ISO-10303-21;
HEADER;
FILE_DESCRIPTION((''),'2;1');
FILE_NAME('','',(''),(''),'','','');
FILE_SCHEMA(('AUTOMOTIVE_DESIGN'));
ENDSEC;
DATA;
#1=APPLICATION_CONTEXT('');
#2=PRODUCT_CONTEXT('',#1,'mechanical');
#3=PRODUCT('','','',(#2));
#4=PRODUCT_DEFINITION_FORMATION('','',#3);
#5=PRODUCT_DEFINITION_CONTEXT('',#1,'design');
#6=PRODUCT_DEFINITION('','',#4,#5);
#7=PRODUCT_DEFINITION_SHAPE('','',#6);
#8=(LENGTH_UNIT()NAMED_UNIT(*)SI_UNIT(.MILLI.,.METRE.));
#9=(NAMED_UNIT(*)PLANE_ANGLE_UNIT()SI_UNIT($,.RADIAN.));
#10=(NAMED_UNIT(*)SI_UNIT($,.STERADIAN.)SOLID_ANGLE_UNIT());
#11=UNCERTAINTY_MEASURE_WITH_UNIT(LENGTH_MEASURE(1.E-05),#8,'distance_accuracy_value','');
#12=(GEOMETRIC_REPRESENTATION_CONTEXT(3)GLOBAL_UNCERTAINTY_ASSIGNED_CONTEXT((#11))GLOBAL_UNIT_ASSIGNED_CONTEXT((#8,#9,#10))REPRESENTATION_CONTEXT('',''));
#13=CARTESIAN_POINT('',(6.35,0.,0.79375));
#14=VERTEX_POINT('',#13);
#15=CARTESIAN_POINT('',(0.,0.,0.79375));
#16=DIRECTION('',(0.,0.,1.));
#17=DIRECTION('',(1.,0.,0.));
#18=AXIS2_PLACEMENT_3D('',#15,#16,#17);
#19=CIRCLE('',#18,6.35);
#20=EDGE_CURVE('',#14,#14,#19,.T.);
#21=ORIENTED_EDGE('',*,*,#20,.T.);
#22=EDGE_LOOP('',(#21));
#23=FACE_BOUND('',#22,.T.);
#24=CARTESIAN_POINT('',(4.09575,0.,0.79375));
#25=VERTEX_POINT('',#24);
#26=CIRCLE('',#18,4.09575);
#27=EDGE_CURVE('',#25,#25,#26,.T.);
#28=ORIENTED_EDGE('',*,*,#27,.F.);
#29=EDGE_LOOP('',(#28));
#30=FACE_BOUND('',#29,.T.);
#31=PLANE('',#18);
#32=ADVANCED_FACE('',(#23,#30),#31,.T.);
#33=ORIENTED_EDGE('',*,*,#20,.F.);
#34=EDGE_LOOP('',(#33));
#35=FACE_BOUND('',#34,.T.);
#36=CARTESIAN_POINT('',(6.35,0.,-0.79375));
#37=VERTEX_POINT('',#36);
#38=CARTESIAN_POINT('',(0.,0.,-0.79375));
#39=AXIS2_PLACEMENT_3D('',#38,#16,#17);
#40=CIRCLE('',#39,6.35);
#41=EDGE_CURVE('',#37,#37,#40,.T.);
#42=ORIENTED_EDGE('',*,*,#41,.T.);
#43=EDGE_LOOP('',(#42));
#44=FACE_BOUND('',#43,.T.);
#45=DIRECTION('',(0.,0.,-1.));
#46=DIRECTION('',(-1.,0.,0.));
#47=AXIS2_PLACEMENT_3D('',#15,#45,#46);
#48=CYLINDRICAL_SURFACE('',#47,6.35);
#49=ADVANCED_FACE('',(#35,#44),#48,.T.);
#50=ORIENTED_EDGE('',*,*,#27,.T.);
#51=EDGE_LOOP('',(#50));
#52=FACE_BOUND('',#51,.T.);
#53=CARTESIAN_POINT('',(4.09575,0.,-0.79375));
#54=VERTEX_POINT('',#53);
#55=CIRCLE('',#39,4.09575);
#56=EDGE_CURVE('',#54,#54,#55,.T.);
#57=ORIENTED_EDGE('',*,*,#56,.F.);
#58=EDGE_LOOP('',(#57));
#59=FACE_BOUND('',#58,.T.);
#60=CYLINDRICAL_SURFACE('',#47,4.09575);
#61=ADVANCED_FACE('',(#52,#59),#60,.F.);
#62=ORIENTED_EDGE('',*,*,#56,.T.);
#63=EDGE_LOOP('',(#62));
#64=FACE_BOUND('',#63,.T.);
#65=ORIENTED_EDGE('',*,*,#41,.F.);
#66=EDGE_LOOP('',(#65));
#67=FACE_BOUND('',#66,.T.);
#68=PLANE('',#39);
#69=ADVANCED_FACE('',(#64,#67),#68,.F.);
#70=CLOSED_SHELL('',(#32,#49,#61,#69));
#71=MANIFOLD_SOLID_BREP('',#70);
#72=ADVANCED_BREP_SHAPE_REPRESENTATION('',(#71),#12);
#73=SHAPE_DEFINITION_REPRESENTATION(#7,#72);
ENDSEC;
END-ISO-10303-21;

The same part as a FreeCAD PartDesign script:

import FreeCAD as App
import Part
import Sketcher

V = App.Vector
Q = App.Units.Quantity

doc = App.newDocument("Part")
body = doc.addObject("PartDesign::Body", "Body")

# Sketch on XY plane
sketch1 = body.newObject("Sketcher::SketchObject", "Sketch")
sketch1.AttachmentSupport = (doc.getObject("XY_Plane"), [""])
sketch1.MapMode = "FlatFace"
sketch1.addGeometry(Part.Circle(V(0, 0, 0), V(0, 0, 1), 6.35), False)
sketch1.addGeometry(Part.Circle(V(0, 0, 0), V(0, 0, 1), 4.09575), False)
sketch1.addConstraint(Sketcher.Constraint("Coincident", 0, 3, -1, 1))
sketch1.addConstraint(Sketcher.Constraint("Coincident", 1, 3, -1, 1))
sketch1.addConstraint(Sketcher.Constraint("Diameter", 0, Q("0.5 in")))
sketch1.addConstraint(Sketcher.Constraint("Diameter", 1, Q("0.3225 in")))
pad1 = body.newObject("PartDesign::Pad", "Pad")
pad1.Profile = sketch1
pad1.Length = Q("0.0625 in")
pad1.Midplane = True

doc.recompute()
